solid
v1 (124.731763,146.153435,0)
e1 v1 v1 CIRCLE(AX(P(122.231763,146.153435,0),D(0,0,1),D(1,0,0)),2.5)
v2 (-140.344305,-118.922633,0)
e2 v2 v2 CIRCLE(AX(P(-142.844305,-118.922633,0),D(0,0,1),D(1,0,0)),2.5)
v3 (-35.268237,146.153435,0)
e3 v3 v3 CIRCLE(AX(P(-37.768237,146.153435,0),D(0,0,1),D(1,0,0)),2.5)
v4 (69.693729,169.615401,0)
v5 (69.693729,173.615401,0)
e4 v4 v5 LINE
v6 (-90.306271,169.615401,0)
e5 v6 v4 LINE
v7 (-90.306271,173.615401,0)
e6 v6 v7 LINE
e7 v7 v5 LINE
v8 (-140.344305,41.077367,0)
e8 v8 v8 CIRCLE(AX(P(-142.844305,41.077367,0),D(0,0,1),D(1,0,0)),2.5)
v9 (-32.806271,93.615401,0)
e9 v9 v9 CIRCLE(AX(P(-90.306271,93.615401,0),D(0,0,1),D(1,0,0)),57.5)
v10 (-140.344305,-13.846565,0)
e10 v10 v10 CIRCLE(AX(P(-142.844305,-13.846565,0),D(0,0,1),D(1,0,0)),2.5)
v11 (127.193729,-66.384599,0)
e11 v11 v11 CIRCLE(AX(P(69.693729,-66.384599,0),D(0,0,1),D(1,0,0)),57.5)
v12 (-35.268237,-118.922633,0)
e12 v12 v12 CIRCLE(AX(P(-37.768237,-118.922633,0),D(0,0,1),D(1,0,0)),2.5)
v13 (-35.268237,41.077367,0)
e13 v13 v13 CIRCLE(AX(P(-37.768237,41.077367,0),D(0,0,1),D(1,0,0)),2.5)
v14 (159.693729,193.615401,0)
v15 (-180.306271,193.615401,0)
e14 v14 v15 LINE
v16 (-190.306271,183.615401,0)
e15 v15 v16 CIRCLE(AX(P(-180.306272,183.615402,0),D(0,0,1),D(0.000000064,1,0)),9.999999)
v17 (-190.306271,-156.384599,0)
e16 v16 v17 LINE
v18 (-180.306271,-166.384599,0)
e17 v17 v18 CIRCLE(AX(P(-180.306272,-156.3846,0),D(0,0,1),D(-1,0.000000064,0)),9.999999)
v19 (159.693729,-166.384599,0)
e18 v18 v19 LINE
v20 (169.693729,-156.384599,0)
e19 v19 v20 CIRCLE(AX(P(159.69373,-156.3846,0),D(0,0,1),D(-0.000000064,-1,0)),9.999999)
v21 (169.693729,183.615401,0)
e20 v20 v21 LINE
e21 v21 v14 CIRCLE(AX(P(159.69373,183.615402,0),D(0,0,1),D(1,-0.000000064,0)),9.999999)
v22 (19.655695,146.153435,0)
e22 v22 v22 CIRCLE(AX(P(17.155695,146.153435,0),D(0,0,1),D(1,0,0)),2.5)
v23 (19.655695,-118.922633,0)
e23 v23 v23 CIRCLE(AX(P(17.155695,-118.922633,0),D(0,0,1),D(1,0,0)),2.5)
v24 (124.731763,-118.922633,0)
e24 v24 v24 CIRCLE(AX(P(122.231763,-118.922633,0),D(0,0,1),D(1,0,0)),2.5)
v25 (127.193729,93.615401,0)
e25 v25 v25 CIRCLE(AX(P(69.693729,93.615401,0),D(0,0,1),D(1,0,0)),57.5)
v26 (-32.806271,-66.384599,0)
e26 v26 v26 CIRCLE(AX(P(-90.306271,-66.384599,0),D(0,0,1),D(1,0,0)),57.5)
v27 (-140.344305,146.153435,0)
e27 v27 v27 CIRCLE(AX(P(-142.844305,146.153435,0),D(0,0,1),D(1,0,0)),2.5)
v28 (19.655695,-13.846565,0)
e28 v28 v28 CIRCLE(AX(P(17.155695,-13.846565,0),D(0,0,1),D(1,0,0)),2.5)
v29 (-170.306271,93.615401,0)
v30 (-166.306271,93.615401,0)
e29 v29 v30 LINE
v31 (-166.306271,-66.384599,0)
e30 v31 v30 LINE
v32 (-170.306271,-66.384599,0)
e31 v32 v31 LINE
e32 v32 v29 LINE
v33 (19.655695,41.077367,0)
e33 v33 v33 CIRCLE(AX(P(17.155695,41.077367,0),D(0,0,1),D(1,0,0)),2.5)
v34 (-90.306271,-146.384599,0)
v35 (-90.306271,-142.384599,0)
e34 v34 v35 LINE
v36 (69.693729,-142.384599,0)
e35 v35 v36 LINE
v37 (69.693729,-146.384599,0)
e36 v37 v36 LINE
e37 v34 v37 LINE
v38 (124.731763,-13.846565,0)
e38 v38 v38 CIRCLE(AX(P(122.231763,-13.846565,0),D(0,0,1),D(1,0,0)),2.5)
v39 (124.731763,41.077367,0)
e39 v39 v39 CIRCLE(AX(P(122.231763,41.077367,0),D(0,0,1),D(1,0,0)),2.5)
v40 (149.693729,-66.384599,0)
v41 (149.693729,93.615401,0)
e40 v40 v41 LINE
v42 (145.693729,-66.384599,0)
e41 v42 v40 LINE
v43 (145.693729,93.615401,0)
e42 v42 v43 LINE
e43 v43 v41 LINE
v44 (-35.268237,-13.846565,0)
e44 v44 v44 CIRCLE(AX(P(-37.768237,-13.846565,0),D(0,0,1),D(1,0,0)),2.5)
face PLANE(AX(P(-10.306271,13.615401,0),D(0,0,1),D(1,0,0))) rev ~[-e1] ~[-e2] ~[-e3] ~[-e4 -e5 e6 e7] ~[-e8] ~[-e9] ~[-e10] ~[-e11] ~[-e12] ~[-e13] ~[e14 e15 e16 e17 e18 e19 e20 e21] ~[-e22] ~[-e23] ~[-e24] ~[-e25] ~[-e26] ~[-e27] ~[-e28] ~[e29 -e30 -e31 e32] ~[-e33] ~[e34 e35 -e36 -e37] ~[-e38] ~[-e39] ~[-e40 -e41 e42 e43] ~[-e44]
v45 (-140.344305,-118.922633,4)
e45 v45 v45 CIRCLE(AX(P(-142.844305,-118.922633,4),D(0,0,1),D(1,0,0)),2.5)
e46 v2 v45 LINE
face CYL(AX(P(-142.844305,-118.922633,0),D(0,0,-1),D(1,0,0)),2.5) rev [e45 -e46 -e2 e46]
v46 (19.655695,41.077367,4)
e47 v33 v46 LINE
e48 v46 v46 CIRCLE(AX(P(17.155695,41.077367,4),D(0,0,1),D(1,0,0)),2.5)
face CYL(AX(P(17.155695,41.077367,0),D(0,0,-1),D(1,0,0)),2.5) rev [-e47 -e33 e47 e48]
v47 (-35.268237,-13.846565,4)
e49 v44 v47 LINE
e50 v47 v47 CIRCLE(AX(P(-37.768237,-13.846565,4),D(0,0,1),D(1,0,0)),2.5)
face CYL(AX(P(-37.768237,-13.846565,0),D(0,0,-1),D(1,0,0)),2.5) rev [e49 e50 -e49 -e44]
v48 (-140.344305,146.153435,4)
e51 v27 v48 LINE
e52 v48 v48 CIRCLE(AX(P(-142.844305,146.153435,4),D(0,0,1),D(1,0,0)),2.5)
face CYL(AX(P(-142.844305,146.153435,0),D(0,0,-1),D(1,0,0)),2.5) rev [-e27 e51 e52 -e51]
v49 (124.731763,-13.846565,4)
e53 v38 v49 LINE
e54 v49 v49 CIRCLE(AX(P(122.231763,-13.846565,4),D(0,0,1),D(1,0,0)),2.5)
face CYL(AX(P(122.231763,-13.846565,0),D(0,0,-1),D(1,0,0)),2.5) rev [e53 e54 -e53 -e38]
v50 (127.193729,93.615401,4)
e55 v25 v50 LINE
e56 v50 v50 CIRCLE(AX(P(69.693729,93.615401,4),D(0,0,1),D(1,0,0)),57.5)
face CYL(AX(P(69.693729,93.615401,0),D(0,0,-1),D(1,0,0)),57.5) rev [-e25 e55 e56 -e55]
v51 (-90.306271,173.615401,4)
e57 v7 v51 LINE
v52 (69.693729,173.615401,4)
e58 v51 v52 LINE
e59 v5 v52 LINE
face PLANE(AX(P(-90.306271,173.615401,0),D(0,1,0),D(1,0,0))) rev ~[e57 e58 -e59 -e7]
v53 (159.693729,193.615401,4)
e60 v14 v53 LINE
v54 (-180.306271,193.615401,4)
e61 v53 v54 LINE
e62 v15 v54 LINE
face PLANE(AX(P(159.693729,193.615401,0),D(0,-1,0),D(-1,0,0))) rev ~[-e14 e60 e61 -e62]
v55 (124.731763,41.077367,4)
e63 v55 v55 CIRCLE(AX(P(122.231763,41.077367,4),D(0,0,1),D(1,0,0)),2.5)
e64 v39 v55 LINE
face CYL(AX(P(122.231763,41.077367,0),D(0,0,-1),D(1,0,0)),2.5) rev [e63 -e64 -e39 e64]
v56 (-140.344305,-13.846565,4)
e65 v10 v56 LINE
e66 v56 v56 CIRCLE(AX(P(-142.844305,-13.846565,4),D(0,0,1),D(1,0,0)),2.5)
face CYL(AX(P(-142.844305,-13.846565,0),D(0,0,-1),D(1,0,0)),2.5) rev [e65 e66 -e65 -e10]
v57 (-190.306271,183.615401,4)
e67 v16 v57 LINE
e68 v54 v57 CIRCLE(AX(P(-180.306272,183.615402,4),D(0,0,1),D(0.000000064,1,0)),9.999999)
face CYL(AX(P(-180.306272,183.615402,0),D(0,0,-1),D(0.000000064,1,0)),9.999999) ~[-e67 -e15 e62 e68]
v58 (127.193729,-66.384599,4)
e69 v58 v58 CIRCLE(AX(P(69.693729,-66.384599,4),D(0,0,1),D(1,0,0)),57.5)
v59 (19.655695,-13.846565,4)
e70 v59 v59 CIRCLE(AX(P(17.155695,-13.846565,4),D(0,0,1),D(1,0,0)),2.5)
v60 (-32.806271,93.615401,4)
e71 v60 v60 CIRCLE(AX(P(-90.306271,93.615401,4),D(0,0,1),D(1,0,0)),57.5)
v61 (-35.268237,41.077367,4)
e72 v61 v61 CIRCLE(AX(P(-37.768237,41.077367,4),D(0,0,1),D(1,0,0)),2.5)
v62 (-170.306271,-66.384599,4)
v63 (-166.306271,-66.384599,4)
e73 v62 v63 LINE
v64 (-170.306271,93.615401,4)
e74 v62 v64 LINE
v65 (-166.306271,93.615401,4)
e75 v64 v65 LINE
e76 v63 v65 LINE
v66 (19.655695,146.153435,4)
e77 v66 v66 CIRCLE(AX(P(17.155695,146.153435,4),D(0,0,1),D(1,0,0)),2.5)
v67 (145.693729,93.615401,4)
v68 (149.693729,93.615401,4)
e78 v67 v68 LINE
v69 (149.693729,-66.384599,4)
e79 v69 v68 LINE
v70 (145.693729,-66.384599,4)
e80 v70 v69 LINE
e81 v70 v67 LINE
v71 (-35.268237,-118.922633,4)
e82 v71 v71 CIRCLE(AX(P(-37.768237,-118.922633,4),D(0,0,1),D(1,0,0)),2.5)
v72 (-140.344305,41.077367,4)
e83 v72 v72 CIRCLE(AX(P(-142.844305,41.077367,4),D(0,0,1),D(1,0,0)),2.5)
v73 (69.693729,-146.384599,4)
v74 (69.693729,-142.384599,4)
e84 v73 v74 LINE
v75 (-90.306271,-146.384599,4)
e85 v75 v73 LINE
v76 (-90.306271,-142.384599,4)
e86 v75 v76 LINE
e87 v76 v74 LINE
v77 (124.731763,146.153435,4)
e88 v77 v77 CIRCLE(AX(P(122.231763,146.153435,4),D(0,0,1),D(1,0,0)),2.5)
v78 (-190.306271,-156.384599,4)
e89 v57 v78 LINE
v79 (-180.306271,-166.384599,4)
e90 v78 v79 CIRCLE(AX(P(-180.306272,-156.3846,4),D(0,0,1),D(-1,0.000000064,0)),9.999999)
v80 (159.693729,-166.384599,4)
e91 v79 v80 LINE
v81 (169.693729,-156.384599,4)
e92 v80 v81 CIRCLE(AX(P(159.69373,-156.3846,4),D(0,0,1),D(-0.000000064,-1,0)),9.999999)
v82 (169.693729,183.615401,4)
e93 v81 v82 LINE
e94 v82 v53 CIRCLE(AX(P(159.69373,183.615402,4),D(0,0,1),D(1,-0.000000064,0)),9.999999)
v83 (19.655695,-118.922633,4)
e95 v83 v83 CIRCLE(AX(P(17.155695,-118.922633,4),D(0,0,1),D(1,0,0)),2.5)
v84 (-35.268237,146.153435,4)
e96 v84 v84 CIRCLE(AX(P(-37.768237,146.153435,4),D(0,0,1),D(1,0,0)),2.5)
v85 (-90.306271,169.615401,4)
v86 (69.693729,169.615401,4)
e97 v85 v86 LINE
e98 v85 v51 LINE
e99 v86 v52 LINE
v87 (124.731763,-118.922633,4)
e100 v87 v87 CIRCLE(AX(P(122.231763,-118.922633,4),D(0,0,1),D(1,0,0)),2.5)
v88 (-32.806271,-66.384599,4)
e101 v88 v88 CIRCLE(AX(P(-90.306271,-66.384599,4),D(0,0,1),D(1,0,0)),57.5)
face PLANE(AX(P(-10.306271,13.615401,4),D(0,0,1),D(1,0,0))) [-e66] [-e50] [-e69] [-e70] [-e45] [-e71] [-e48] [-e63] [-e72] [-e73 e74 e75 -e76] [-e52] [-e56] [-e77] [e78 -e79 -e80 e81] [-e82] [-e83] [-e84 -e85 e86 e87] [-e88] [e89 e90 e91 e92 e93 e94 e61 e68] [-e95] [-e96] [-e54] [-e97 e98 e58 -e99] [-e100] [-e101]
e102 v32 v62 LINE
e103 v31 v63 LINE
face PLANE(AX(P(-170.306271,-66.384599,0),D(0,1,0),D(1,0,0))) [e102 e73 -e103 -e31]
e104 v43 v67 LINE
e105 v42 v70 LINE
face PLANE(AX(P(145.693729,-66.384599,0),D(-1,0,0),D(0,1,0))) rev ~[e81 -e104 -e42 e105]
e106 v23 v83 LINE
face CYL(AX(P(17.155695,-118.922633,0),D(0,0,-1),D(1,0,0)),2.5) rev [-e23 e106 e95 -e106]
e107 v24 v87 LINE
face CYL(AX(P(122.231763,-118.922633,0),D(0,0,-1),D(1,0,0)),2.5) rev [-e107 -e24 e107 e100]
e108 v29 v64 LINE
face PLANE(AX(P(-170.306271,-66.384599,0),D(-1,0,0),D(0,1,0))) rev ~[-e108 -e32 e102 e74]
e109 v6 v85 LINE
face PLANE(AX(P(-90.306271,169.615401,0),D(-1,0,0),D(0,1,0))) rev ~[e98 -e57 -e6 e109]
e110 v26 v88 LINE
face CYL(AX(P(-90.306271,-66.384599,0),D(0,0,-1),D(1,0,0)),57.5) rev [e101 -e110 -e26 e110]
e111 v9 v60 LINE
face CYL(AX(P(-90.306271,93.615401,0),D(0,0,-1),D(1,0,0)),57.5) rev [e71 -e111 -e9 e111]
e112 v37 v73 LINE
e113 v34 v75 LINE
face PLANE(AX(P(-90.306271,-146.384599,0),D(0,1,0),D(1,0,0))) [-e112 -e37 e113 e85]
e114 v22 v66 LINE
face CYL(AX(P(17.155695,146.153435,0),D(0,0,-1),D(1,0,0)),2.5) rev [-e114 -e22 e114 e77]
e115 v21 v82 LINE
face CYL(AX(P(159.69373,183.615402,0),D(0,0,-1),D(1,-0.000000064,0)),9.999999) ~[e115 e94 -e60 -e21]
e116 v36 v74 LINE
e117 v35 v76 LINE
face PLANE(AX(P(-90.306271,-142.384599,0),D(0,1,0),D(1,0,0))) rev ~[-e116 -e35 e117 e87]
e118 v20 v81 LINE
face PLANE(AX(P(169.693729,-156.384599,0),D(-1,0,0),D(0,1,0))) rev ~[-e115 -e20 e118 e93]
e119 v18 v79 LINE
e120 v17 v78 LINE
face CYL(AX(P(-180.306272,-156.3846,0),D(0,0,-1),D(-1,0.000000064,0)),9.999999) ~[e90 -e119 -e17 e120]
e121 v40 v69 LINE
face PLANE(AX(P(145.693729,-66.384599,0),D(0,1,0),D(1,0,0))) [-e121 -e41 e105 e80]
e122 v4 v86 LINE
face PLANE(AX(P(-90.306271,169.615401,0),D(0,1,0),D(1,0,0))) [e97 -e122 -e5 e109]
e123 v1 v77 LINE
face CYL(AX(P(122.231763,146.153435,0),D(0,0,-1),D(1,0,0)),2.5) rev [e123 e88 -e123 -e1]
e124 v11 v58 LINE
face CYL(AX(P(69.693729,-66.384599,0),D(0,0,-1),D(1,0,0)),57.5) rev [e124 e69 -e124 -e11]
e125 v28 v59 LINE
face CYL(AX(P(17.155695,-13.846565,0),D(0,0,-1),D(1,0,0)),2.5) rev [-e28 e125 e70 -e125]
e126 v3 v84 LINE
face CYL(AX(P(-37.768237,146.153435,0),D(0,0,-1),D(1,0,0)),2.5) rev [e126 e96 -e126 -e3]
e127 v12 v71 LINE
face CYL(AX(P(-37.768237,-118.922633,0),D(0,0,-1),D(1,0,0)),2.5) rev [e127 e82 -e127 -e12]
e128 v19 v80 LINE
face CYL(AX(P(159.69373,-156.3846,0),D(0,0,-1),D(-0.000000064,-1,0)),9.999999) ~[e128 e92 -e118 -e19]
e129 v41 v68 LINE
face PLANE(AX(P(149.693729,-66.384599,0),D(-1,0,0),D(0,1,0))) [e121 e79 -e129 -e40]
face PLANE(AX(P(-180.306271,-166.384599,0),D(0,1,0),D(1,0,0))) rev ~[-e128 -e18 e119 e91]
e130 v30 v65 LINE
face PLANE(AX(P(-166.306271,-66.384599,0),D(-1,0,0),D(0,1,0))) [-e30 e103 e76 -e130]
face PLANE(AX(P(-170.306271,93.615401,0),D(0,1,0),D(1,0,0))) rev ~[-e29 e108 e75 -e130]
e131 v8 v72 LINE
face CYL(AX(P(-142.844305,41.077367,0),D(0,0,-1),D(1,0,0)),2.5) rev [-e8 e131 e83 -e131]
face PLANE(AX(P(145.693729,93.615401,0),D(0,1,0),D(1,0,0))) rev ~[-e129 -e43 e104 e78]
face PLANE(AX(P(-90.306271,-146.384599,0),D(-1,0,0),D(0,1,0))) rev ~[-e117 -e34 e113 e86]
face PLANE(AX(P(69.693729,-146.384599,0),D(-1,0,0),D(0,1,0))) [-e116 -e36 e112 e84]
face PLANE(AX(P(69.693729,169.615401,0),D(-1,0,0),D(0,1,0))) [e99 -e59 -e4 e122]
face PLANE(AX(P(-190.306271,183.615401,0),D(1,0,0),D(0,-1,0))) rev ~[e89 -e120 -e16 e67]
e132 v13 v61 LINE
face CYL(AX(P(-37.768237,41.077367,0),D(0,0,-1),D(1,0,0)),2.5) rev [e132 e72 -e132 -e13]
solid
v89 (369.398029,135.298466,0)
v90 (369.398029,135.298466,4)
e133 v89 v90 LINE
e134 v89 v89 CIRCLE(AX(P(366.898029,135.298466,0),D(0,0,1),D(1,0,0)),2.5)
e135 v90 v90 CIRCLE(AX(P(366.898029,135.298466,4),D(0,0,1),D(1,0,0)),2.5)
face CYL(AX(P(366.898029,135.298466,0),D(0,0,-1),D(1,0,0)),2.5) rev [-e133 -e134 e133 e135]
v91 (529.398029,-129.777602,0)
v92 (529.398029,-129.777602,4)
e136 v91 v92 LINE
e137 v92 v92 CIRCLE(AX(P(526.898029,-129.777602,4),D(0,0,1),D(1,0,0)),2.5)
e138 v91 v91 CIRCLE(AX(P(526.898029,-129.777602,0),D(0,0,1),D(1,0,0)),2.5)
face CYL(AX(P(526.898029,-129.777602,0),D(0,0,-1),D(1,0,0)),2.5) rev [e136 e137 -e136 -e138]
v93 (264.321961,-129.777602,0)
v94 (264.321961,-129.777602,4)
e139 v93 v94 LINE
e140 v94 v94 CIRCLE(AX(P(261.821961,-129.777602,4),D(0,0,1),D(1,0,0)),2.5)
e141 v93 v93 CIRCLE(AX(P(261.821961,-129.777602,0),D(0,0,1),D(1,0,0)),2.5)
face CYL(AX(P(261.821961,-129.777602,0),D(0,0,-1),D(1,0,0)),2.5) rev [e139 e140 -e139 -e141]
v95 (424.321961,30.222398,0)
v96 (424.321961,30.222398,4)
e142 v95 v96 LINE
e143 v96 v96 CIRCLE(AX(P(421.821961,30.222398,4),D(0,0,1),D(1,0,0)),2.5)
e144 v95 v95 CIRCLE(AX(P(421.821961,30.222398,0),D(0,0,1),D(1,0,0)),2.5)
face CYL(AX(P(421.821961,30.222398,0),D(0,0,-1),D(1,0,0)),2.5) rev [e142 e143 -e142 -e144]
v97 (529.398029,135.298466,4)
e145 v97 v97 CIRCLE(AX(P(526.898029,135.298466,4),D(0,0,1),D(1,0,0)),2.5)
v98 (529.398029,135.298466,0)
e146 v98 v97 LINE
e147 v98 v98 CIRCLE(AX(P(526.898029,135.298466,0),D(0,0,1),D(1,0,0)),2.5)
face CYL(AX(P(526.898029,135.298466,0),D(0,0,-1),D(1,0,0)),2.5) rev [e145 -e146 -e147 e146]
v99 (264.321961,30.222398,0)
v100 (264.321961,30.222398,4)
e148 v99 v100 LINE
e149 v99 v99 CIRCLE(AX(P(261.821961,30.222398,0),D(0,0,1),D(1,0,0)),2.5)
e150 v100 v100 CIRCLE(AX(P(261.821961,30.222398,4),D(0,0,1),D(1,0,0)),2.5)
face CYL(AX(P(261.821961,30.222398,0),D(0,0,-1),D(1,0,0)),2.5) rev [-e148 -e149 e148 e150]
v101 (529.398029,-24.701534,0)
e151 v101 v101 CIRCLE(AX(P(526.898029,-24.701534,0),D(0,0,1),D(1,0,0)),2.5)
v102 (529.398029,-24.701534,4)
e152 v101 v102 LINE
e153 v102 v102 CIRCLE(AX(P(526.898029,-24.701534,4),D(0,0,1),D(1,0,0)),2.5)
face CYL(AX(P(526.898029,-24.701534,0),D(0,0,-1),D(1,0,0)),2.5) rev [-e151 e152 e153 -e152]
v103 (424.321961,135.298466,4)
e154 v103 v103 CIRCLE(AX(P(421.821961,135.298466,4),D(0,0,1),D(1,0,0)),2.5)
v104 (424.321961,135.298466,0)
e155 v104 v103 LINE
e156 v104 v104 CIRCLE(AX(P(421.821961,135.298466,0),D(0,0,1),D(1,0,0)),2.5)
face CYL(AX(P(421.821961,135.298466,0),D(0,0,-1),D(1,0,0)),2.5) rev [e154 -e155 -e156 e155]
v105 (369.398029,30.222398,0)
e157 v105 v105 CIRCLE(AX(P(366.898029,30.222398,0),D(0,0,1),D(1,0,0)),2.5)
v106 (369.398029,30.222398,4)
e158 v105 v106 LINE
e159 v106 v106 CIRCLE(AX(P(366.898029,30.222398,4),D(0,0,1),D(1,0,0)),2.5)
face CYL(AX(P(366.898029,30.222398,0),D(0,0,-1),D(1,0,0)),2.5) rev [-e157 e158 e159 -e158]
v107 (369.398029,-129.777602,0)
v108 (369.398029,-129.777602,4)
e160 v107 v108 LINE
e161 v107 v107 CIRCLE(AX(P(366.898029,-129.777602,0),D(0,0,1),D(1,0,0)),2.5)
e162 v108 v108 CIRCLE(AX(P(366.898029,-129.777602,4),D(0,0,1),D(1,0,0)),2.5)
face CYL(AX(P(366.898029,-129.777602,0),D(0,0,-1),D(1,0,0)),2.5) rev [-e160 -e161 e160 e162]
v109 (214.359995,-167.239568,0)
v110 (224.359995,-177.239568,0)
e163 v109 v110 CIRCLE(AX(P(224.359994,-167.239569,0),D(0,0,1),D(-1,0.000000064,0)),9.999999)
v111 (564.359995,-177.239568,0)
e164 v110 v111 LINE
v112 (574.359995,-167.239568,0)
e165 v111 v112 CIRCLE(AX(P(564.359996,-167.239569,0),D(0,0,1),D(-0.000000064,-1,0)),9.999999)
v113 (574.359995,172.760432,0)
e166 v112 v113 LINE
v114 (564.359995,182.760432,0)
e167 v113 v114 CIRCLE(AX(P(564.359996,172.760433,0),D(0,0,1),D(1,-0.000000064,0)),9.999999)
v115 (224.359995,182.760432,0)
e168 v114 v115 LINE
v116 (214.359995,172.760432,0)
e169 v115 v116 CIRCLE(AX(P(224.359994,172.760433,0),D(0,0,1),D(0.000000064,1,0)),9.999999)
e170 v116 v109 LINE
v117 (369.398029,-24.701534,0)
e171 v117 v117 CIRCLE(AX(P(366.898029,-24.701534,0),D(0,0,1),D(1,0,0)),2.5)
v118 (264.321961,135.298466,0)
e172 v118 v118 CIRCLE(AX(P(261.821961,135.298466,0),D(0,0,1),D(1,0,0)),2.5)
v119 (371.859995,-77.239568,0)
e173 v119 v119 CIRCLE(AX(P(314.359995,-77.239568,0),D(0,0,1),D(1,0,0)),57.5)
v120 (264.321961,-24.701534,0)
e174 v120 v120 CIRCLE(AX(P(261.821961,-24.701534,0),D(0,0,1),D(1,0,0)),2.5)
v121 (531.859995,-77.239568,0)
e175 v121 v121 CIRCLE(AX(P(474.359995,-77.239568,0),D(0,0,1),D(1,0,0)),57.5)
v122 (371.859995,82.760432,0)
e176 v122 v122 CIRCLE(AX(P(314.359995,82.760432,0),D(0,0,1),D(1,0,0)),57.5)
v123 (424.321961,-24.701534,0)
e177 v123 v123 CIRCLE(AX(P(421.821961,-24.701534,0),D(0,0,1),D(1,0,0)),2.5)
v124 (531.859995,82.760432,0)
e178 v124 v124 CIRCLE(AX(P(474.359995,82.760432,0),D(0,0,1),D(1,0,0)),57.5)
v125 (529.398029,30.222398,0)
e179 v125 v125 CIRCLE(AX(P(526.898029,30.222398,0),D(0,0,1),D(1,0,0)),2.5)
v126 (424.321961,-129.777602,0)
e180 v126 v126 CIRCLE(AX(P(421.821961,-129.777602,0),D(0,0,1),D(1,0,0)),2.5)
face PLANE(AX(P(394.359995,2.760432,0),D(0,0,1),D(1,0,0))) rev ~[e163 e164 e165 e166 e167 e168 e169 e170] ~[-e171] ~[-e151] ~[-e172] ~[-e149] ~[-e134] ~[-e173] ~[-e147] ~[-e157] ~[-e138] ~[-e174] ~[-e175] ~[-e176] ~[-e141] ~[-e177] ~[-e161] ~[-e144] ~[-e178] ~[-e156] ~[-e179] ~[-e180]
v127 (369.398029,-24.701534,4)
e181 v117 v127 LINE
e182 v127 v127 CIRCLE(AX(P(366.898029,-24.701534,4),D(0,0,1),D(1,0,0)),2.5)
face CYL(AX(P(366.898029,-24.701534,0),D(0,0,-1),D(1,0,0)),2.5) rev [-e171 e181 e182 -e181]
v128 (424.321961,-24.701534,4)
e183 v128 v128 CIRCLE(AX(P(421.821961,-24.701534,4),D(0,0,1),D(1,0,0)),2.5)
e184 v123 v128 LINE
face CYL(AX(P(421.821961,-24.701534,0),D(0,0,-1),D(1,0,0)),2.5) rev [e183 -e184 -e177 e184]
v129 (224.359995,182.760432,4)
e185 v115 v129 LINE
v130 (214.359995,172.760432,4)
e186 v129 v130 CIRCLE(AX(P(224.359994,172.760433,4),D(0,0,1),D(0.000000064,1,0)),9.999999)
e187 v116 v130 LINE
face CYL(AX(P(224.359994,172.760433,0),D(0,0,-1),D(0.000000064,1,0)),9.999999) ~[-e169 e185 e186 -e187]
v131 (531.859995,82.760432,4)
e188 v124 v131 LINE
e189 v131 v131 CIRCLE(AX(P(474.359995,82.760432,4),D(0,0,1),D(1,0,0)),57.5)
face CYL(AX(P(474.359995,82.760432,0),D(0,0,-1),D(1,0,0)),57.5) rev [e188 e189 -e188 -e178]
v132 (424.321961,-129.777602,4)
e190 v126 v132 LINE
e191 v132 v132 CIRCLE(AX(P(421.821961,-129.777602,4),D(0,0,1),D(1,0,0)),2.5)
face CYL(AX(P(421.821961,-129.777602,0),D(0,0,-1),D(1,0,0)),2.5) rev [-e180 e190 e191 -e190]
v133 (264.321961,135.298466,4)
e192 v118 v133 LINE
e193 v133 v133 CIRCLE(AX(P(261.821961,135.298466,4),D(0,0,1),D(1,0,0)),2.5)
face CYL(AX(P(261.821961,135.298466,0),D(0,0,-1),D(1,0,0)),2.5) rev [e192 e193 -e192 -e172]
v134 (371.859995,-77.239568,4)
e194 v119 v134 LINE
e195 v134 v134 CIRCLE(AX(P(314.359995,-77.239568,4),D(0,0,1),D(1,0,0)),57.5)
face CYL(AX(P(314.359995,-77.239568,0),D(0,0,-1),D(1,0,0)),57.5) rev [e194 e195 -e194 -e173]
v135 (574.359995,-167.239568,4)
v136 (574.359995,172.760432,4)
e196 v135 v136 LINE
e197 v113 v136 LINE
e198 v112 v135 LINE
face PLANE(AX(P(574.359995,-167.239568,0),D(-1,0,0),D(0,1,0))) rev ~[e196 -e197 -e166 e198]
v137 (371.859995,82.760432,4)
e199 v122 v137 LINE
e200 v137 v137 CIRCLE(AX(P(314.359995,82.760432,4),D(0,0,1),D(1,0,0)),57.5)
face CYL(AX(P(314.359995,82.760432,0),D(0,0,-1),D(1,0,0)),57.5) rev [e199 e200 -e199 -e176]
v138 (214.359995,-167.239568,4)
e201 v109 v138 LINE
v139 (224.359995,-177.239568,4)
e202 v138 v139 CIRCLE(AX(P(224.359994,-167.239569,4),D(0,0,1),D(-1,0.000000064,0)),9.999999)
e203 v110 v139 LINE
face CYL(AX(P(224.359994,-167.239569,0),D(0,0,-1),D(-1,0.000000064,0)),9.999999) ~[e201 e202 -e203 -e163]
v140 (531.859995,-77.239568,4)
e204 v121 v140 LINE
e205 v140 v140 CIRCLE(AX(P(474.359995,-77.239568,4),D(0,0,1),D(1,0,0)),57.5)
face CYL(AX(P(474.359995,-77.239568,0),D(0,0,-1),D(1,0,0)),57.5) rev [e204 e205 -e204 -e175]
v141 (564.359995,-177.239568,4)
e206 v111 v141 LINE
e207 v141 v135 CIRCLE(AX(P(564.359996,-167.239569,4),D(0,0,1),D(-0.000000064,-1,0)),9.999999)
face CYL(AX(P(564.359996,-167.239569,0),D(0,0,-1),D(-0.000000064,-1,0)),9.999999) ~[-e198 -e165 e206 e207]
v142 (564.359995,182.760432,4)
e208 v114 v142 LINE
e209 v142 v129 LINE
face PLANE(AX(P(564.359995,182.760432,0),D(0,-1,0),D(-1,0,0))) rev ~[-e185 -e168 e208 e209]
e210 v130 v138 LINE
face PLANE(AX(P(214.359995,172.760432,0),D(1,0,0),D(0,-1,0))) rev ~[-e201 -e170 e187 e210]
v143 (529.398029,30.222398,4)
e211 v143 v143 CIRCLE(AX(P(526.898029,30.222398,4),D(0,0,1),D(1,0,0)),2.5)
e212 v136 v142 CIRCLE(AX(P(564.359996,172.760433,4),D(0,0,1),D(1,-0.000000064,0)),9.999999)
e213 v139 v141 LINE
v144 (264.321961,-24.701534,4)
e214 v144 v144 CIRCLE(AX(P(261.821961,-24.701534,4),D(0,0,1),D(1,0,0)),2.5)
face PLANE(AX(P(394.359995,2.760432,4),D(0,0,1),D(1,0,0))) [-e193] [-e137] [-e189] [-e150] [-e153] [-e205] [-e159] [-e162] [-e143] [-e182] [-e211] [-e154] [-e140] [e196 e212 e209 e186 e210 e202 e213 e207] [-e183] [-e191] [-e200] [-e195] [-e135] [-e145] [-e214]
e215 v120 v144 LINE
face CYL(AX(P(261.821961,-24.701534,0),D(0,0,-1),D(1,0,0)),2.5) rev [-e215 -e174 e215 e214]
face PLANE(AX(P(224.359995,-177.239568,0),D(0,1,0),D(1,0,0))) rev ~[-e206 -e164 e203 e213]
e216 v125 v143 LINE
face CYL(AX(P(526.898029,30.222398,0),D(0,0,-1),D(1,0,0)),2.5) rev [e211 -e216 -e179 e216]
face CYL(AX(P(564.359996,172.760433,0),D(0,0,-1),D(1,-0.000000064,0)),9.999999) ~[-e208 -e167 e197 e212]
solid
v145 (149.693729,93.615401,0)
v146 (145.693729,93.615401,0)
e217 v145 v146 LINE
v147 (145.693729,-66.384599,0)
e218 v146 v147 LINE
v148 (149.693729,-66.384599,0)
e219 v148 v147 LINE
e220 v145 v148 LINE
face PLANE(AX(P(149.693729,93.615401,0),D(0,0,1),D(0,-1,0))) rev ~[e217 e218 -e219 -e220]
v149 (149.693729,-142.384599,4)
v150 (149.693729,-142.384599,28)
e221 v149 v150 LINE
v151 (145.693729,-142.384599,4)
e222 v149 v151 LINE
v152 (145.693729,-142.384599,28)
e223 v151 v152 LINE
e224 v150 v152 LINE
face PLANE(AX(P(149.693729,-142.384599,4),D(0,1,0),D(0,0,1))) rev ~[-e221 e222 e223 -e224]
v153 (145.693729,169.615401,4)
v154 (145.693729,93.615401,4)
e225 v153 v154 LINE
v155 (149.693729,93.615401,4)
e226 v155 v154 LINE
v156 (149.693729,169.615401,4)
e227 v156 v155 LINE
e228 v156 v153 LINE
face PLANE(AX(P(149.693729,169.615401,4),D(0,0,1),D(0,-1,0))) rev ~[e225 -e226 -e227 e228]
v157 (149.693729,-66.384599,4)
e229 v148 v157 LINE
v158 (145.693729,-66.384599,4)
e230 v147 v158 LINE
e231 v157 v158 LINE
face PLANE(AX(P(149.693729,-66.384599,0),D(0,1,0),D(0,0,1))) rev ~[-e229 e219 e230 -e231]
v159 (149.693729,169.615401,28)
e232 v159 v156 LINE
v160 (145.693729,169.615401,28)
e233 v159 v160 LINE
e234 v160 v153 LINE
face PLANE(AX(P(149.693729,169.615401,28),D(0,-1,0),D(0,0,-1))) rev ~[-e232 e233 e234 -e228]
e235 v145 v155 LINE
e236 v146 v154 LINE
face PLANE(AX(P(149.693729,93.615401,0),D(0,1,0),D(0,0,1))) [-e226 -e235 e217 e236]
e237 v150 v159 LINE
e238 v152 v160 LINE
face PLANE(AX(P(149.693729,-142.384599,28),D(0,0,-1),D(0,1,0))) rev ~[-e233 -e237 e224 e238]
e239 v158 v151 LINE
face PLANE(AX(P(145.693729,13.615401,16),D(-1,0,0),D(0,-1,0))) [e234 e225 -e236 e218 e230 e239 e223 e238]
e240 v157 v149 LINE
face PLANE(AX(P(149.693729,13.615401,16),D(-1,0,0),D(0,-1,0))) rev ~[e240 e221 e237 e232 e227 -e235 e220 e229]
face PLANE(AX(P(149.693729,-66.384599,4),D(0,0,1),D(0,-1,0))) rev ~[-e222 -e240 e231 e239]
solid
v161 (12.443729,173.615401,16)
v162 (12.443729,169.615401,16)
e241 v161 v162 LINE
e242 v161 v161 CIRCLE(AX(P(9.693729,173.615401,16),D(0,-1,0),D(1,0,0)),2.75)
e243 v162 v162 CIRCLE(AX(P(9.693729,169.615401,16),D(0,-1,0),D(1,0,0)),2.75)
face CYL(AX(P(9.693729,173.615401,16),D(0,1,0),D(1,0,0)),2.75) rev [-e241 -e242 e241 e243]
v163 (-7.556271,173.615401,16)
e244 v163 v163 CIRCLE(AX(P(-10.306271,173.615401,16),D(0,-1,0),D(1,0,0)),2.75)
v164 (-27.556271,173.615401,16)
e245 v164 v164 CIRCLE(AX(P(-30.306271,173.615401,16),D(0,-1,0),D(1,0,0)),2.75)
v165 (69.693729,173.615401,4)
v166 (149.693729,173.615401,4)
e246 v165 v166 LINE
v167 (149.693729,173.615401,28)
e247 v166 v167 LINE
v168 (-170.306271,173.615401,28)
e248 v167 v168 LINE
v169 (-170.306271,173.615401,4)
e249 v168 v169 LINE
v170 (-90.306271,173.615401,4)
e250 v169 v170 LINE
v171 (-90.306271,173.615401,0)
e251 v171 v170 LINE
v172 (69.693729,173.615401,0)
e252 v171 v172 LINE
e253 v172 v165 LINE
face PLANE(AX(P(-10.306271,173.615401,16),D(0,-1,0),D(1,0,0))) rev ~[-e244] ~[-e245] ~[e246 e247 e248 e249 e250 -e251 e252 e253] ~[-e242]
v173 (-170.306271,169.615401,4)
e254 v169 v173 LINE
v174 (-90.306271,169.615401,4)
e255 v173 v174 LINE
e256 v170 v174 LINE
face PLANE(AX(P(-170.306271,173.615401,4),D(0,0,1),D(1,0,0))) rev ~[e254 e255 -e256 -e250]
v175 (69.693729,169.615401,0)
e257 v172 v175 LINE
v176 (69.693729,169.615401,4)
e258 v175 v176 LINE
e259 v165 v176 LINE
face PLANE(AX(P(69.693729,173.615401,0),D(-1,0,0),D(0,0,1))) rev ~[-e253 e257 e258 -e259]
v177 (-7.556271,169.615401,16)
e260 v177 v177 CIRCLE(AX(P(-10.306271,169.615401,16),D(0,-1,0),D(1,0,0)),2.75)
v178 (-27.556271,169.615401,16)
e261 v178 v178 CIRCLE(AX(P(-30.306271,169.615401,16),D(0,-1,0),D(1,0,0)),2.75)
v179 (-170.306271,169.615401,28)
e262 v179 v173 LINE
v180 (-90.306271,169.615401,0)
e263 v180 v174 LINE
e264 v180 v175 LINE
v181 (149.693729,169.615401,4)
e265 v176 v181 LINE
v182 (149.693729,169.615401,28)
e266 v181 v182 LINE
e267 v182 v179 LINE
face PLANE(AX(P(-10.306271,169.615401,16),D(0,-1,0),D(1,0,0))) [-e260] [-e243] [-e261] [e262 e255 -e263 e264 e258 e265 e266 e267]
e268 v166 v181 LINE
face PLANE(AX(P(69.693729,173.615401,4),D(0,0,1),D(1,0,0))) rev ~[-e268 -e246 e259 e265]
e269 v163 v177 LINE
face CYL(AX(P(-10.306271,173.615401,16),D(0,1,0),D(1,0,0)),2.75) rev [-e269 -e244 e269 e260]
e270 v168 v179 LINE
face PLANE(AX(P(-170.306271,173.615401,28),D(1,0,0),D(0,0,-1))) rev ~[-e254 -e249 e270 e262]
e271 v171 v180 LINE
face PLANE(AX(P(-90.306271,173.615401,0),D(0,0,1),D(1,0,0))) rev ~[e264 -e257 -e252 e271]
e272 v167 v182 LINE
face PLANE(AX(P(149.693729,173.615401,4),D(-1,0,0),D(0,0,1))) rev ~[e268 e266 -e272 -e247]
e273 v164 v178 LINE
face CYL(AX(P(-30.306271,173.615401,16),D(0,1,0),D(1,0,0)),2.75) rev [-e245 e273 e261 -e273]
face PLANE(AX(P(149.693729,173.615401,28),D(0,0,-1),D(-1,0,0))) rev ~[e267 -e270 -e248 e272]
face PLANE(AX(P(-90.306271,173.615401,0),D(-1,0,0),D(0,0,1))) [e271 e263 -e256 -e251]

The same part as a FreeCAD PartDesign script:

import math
import FreeCAD as App
import Part
import Sketcher
from FreeCAD import Vector
Q = App.Units.Quantity

doc = App.newDocument("Part")
body = doc.addObject("PartDesign::Body", "Body")
body.AllowCompound = True

sketch1 = body.newObject("Sketcher::SketchObject", "Sketch")
sketch1.AttachmentSupport = (doc.getObject("XY_Plane"), [""])
sketch1.MapMode = "FlatFace"
sketch1.addGeometry([
    Part.LineSegment(Vector(159.693729, 193.615401, 0), Vector(-180.306271, 193.615401, 0)),
    Part.ArcOfCircle(Part.Circle(Vector(-180.306272, 183.615402, 0), Vector(0, 0, 1), 9.999999), math.radians(89.999996), math.radians(180.000004)),
    Part.LineSegment(Vector(-190.306271, 183.615401, 0), Vector(-190.306271, -156.384599, 0)),
    Part.ArcOfCircle(Part.Circle(Vector(-180.306272, -156.3846, 0), Vector(0, 0, 1), 9.999999), math.radians(179.999996), math.radians(270.000004)),
    Part.LineSegment(Vector(-180.306271, -166.384599, 0), Vector(159.693729, -166.384599, 0)),
    Part.ArcOfCircle(Part.Circle(Vector(159.69373, -156.3846, 0), Vector(0, 0, 1), 9.999999), math.radians(-90.000004), math.radians(0.000004)),
    Part.LineSegment(Vector(169.693729, -156.384599, 0), Vector(169.693729, 183.615401, 0)),
    Part.ArcOfCircle(Part.Circle(Vector(159.69373, 183.615402, 0), Vector(0, 0, 1), 9.999999), math.radians(-0.000004), math.radians(90.000004)),
    Part.Circle(Vector(-142.844305, -118.922633, 0), Vector(0, 0, 1), 2.5),
    Part.Circle(Vector(-37.768237, -118.922633, 0), Vector(0, 0, 1), 2.5),
    Part.Circle(Vector(-142.844305, -13.846565, 0), Vector(0, 0, 1), 2.5),
    Part.Circle(Vector(-90.306271, -66.384599, 0), Vector(0, 0, 1), 57.5),
    Part.Circle(Vector(-37.768237, -13.846565, 0), Vector(0, 0, 1), 2.5),
    Part.LineSegment(Vector(69.693729, -146.384599, 0), Vector(-90.306271, -146.384599, 0)),
    Part.LineSegment(Vector(-90.306271, -146.384599, 0), Vector(-90.306271, -142.384599, 0)),
    Part.LineSegment(Vector(-90.306271, -142.384599, 0), Vector(69.693729, -142.384599, 0)),
    Part.LineSegment(Vector(69.693729, -142.384599, 0), Vector(69.693729, -146.384599, 0)),
    Part.Circle(Vector(17.155695, -118.922633, 0), Vector(0, 0, 1), 2.5),
    Part.Circle(Vector(122.231763, -118.922633, 0), Vector(0, 0, 1), 2.5),
    Part.Circle(Vector(17.155695, -13.846565, 0), Vector(0, 0, 1), 2.5),
    Part.Circle(Vector(69.693729, -66.384599, 0), Vector(0, 0, 1), 57.5),
    Part.Circle(Vector(122.231763, -13.846565, 0), Vector(0, 0, 1), 2.5),
    Part.LineSegment(Vector(-166.306271, -66.384599, 0), Vector(-170.306271, -66.384599, 0)),
    Part.LineSegment(Vector(-170.306271, -66.384599, 0), Vector(-170.306271, 93.615401, 0)),
    Part.LineSegment(Vector(-170.306271, 93.615401, 0), Vector(-166.306271, 93.615401, 0)),
    Part.LineSegment(Vector(-166.306271, 93.615401, 0), Vector(-166.306271, -66.384599, 0)),
    Part.Circle(Vector(-142.844305, 41.077367, 0), Vector(0, 0, 1), 2.5),
    Part.Circle(Vector(-37.768237, 41.077367, 0), Vector(0, 0, 1), 2.5),
    Part.Circle(Vector(-142.844305, 146.153435, 0), Vector(0, 0, 1), 2.5),
    Part.Circle(Vector(-90.306271, 93.615401, 0), Vector(0, 0, 1), 57.5),
    Part.Circle(Vector(-37.768237, 146.153435, 0), Vector(0, 0, 1), 2.5),
    Part.Circle(Vector(17.155695, 41.077367, 0), Vector(0, 0, 1), 2.5),
    Part.LineSegment(Vector(149.693729, -66.384599, 0), Vector(145.693729, -66.384599, 0)),
    Part.LineSegment(Vector(145.693729, -66.384599, 0), Vector(145.693729, 93.615401, 0)),
    Part.LineSegment(Vector(145.693729, 93.615401, 0), Vector(149.693729, 93.615401, 0)),
    Part.LineSegment(Vector(149.693729, 93.615401, 0), Vector(149.693729, -66.384599, 0)),
    Part.Circle(Vector(122.231763, 41.077367, 0), Vector(0, 0, 1), 2.5),
    Part.Circle(Vector(17.155695, 146.153435, 0), Vector(0, 0, 1), 2.5),
    Part.LineSegment(Vector(69.693729, 169.615401, 0), Vector(-90.306271, 169.615401, 0)),
    Part.LineSegment(Vector(-90.306271, 169.615401, 0), Vector(-90.306271, 173.615401, 0)),
    Part.LineSegment(Vector(-90.306271, 173.615401, 0), Vector(69.693729, 173.615401, 0)),
    Part.LineSegment(Vector(69.693729, 173.615401, 0), Vector(69.693729, 169.615401, 0)),
    Part.Circle(Vector(69.693729, 93.615401, 0), Vector(0, 0, 1), 57.5),
    Part.Circle(Vector(122.231763, 146.153435, 0), Vector(0, 0, 1), 2.5),
    Part.LineSegment(Vector(564.359995, 182.760432, 0), Vector(224.359995, 182.760432, 0)),
    Part.ArcOfCircle(Part.Circle(Vector(224.359994, 172.760433, 0), Vector(0, 0, 1), 9.999999), math.radians(89.999996), math.radians(180.000004)),
    Part.LineSegment(Vector(214.359995, 172.760432, 0), Vector(214.359995, -167.239568, 0)),
    Part.ArcOfCircle(Part.Circle(Vector(224.359994, -167.239569, 0), Vector(0, 0, 1), 9.999999), math.radians(179.999996), math.radians(270.000004)),
    Part.LineSegment(Vector(224.359995, -177.239568, 0), Vector(564.359995, -177.239568, 0)),
    Part.ArcOfCircle(Part.Circle(Vector(564.359996, -167.239569, 0), Vector(0, 0, 1), 9.999999), math.radians(-90.000004), math.radians(0.000004)),
    Part.LineSegment(Vector(574.359995, -167.239568, 0), Vector(574.359995, 172.760432, 0)),
    Part.ArcOfCircle(Part.Circle(Vector(564.359996, 172.760433, 0), Vector(0, 0, 1), 9.999999), math.radians(-0.000004), math.radians(90.000004)),
    Part.Circle(Vector(261.821961, -129.777602, 0), Vector(0, 0, 1), 2.5),
    Part.Circle(Vector(314.359995, -77.239568, 0), Vector(0, 0, 1), 57.5),
    Part.Circle(Vector(366.898029, -129.777602, 0), Vector(0, 0, 1), 2.5),
    Part.Circle(Vector(261.821961, -24.701534, 0), Vector(0, 0, 1), 2.5),
    Part.Circle(Vector(366.898029, -24.701534, 0), Vector(0, 0, 1), 2.5),
    Part.Circle(Vector(421.821961, -129.777602, 0), Vector(0, 0, 1), 2.5),
    Part.Circle(Vector(526.898029, -129.777602, 0), Vector(0, 0, 1), 2.5),
    Part.Circle(Vector(474.359995, -77.239568, 0), Vector(0, 0, 1), 57.5),
    Part.Circle(Vector(421.821961, -24.701534, 0), Vector(0, 0, 1), 2.5),
    Part.Circle(Vector(526.898029, -24.701534, 0), Vector(0, 0, 1), 2.5),
    Part.Circle(Vector(261.821961, 30.222398, 0), Vector(0, 0, 1), 2.5),
    Part.Circle(Vector(366.898029, 30.222398, 0), Vector(0, 0, 1), 2.5),
    Part.Circle(Vector(314.359995, 82.760432, 0), Vector(0, 0, 1), 57.5),
    Part.Circle(Vector(261.821961, 135.298466, 0), Vector(0, 0, 1), 2.5),
    Part.Circle(Vector(366.898029, 135.298466, 0), Vector(0, 0, 1), 2.5),
    Part.Circle(Vector(421.821961, 30.222398, 0), Vector(0, 0, 1), 2.5),
    Part.Circle(Vector(526.898029, 30.222398, 0), Vector(0, 0, 1), 2.5),
    Part.Circle(Vector(421.821961, 135.298466, 0), Vector(0, 0, 1), 2.5),
    Part.Circle(Vector(474.359995, 82.760432, 0), Vector(0, 0, 1), 57.5),
    Part.Circle(Vector(526.898029, 135.298466, 0), Vector(0, 0, 1), 2.5),
], False)
sketch1.addConstraint([
    Sketcher.Constraint("Tangent", 0, 2, 1, 1),
    Sketcher.Constraint("Tangent", 1, 2, 2, 1),
    Sketcher.Constraint("Tangent", 2, 2, 3, 1),
    Sketcher.Constraint("Tangent", 3, 2, 4, 1),
    Sketcher.Constraint("Tangent", 4, 2, 5, 1),
    Sketcher.Constraint("Tangent", 5, 2, 6, 1),
    Sketcher.Constraint("Tangent", 6, 2, 7, 1),
    Sketcher.Constraint("Tangent", 7, 2, 0, 1),
    Sketcher.Constraint("Coincident", 13, 2, 14, 1),
    Sketcher.Constraint("Coincident", 14, 2, 15, 1),
    Sketcher.Constraint("Coincident", 15, 2, 16, 1),
    Sketcher.Constraint("Coincident", 16, 2, 13, 1),
    Sketcher.Constraint("Coincident", 22, 2, 23, 1),
    Sketcher.Constraint("Coincident", 23, 2, 24, 1),
    Sketcher.Constraint("Coincident", 24, 2, 25, 1),
    Sketcher.Constraint("Coincident", 25, 2, 22, 1),
    Sketcher.Constraint("Coincident", 32, 2, 33, 1),
    Sketcher.Constraint("Coincident", 33, 2, 34, 1),
    Sketcher.Constraint("Coincident", 34, 2, 35, 1),
    Sketcher.Constraint("Coincident", 35, 2, 32, 1),
    Sketcher.Constraint("Coincident", 38, 2, 39, 1),
    Sketcher.Constraint("Coincident", 39, 2, 40, 1),
    Sketcher.Constraint("Coincident", 40, 2, 41, 1),
    Sketcher.Constraint("Coincident", 41, 2, 38, 1),
    Sketcher.Constraint("Tangent", 44, 2, 45, 1),
    Sketcher.Constraint("Tangent", 45, 2, 46, 1),
    Sketcher.Constraint("Tangent", 46, 2, 47, 1),
    Sketcher.Constraint("Tangent", 47, 2, 48, 1),
    Sketcher.Constraint("Tangent", 48, 2, 49, 1),
    Sketcher.Constraint("Tangent", 49, 2, 50, 1),
    Sketcher.Constraint("Tangent", 50, 2, 51, 1),
    Sketcher.Constraint("Tangent", 51, 2, 44, 1),
    Sketcher.Constraint("Horizontal", 0),
    Sketcher.Constraint("Vertical", 2),
    Sketcher.Constraint("Horizontal", 4),
    Sketcher.Constraint("Vertical", 6),
    Sketcher.Constraint("Horizontal", 13),
    Sketcher.Constraint("Vertical", 14),
    Sketcher.Constraint("Horizontal", 15),
    Sketcher.Constraint("Vertical", 16),
    Sketcher.Constraint("Horizontal", 22),
    Sketcher.Constraint("Vertical", 23),
    Sketcher.Constraint("Horizontal", 24),
    Sketcher.Constraint("Vertical", 25),
    Sketcher.Constraint("Horizontal", 32),
    Sketcher.Constraint("Vertical", 33),
    Sketcher.Constraint("Horizontal", 34),
    Sketcher.Constraint("Vertical", 35),
    Sketcher.Constraint("Horizontal", 38),
    Sketcher.Constraint("Vertical", 39),
    Sketcher.Constraint("Horizontal", 40),
    Sketcher.Constraint("Vertical", 41),
    Sketcher.Constraint("Horizontal", 44),
    Sketcher.Constraint("Vertical", 46),
    Sketcher.Constraint("Horizontal", 48),
    Sketcher.Constraint("Vertical", 50),
    Sketcher.Constraint("Equal", 1, 3),
    Sketcher.Constraint("Equal", 3, 5),
    Sketcher.Constraint("Equal", 5, 7),
    Sketcher.Constraint("Equal", 8, 9),
    Sketcher.Constraint("Equal", 9, 10),
    Sketcher.Constraint("Equal", 10, 12),
    Sketcher.Constraint("Equal", 12, 17),
    Sketcher.Constraint("Equal", 17, 18),
    Sketcher.Constraint("Equal", 18, 19),
    Sketcher.Constraint("Equal", 11, 20),
    Sketcher.Constraint("Equal", 19, 21),
    Sketcher.Constraint("Equal", 21, 26),
    Sketcher.Constraint("Equal", 26, 27),
    Sketcher.Constraint("Equal", 27, 28),
    Sketcher.Constraint("Equal", 20, 29),
    Sketcher.Constraint("Equal", 28, 30),
    Sketcher.Constraint("Equal", 30, 31),
    Sketcher.Constraint("Equal", 31, 36),
    Sketcher.Constraint("Equal", 36, 37),
    Sketcher.Constraint("Equal", 29, 42),
    Sketcher.Constraint("Equal", 37, 43),
    Sketcher.Constraint("Equal", 7, 45),
    Sketcher.Constraint("Equal", 45, 47),
    Sketcher.Constraint("Equal", 47, 49),
    Sketcher.Constraint("Equal", 49, 51),
    Sketcher.Constraint("Equal", 43, 52),
    Sketcher.Constraint("Equal", 42, 53),
    Sketcher.Constraint("Equal", 52, 54),
    Sketcher.Constraint("Equal", 54, 55),
    Sketcher.Constraint("Equal", 55, 56),
    Sketcher.Constraint("Equal", 56, 57),
    Sketcher.Constraint("Equal", 57, 58),
    Sketcher.Constraint("Equal", 53, 59),
    Sketcher.Constraint("Equal", 58, 60),
    Sketcher.Constraint("Equal", 60, 61),
    Sketcher.Constraint("Equal", 61, 62),
    Sketcher.Constraint("Equal", 62, 63),
    Sketcher.Constraint("Equal", 59, 64),
    Sketcher.Constraint("Equal", 63, 65),
    Sketcher.Constraint("Equal", 65, 66),
    Sketcher.Constraint("Equal", 66, 67),
    Sketcher.Constraint("Equal", 67, 68),
    Sketcher.Constraint("Equal", 68, 69),
    Sketcher.Constraint("Equal", 64, 70),
    Sketcher.Constraint("Equal", 69, 71),
    Sketcher.Constraint("Horizontal", 8, 3, 9, 3),
    Sketcher.Constraint("Horizontal", 10, 3, 12, 3),
    Sketcher.Constraint("Horizontal", 9, 3, 17, 3),
    Sketcher.Constraint("Horizontal", 17, 3, 18, 3),
    Sketcher.Constraint("Horizontal", 12, 3, 19, 3),
    Sketcher.Constraint("Horizontal", 11, 3, 20, 3),
    Sketcher.Constraint("Horizontal", 19, 3, 21, 3),
    Sketcher.Constraint("Horizontal", 26, 3, 27, 3),
    Sketcher.Constraint("Horizontal", 28, 3, 30, 3),
    Sketcher.Constraint("Horizontal", 27, 3, 31, 3),
    Sketcher.Constraint("Horizontal", 31, 3, 36, 3),
    Sketcher.Constraint("Horizontal", 30, 3, 37, 3),
    Sketcher.Constraint("Horizontal", 29, 3, 42, 3),
    Sketcher.Constraint("Horizontal", 37, 3, 43, 3),
    Sketcher.Constraint("Horizontal", 52, 3, 54, 3),
    Sketcher.Constraint("Horizontal", 55, 3, 56, 3),
    Sketcher.Constraint("Horizontal", 54, 3, 57, 3),
    Sketcher.Constraint("Horizontal", 57, 3, 58, 3),
    Sketcher.Constraint("Horizontal", 53, 3, 59, 3),
    Sketcher.Constraint("Horizontal", 56, 3, 60, 3),
    Sketcher.Constraint("Horizontal", 60, 3, 61, 3),
    Sketcher.Constraint("Horizontal", 62, 3, 63, 3),
    Sketcher.Constraint("Horizontal", 65, 3, 66, 3),
    Sketcher.Constraint("Horizontal", 63, 3, 67, 3),
    Sketcher.Constraint("Horizontal", 67, 3, 68, 3),
    Sketcher.Constraint("Horizontal", 66, 3, 69, 3),
    Sketcher.Constraint("Horizontal", 64, 3, 70, 3),
    Sketcher.Constraint("Horizontal", 69, 3, 71, 3),
    Sketcher.Constraint("Horizontal", 20, 3, 22, 2),
    Sketcher.Constraint("Horizontal", 42, 3, 23, 2),
    Sketcher.Constraint("Horizontal", 25, 2, 32, 2),
    Sketcher.Constraint("Horizontal", 24, 2, 33, 2),
    Sketcher.Constraint("Vertical", 8, 3, 10, 3),
    Sketcher.Constraint("Vertical", 9, 3, 12, 3),
    Sketcher.Constraint("Vertical", 17, 3, 19, 3),
    Sketcher.Constraint("Vertical", 18, 3, 21, 3),
    Sketcher.Constraint("Vertical", 10, 3, 26, 3),
    Sketcher.Constraint("Vertical", 12, 3, 27, 3),
    Sketcher.Constraint("Vertical", 26, 3, 28, 3),
    Sketcher.Constraint("Vertical", 11, 3, 29, 3),
    Sketcher.Constraint("Vertical", 27, 3, 30, 3),
    Sketcher.Constraint("Vertical", 19, 3, 31, 3),
    Sketcher.Constraint("Vertical", 21, 3, 36, 3),
    Sketcher.Constraint("Vertical", 31, 3, 37, 3),
    Sketcher.Constraint("Vertical", 20, 3, 42, 3),
    Sketcher.Constraint("Vertical", 36, 3, 43, 3),
    Sketcher.Constraint("Vertical", 52, 3, 55, 3),
    Sketcher.Constraint("Vertical", 54, 3, 56, 3),
    Sketcher.Constraint("Vertical", 57, 3, 60, 3),
    Sketcher.Constraint("Vertical", 58, 3, 61, 3),
    Sketcher.Constraint("Vertical", 55, 3, 62, 3),
    Sketcher.Constraint("Vertical", 56, 3, 63, 3),
    Sketcher.Constraint("Vertical", 53, 3, 64, 3),
    Sketcher.Constraint("Vertical", 62, 3, 65, 3),
    Sketcher.Constraint("Vertical", 63, 3, 66, 3),
    Sketcher.Constraint("Vertical", 60, 3, 67, 3),
    Sketcher.Constraint("Vertical", 61, 3, 68, 3),
    Sketcher.Constraint("Vertical", 67, 3, 69, 3),
    Sketcher.Constraint("Vertical", 59, 3, 70, 3),
    Sketcher.Constraint("Vertical", 68, 3, 71, 3),
    Sketcher.Constraint("Vertical", 29, 3, 13, 2),
    Sketcher.Constraint("Vertical", 42, 3, 15, 2),
    Sketcher.Constraint("Vertical", 14, 2, 38, 2),
    Sketcher.Constraint("Vertical", 16, 2, 40, 2),
    Sketcher.Constraint("Equal", 24, 32),
    Sketcher.Constraint("Equal", 4, 44),
    Sketcher.Constraint("Equal", 48, 2),
    Sketcher.Constraint("Equal", 34, 14),
    Sketcher.Constraint("Equal", 40, 23),
    Sketcher.Constraint("Equal", 16, 39),
    Sketcher.Constraint("Equal", 6, 46),
    Sketcher.Constraint("Diameter", 8, Q("5 mm")),
    Sketcher.Constraint("Diameter", 11, Q("115 mm")),
    Sketcher.Constraint("Radius", 1, Q("9.999999 mm")),
    Sketcher.Constraint("DistanceX", 0, 2, 0, 1, Q("340 mm")),
    Sketcher.Constraint("DistanceX", 13, 2, 13, 1, Q("160 mm")),
    Sketcher.Constraint("DistanceX", 22, 2, 22, 1, Q("4 mm")),
    Sketcher.Constraint("DistanceY", -1, 1, 1, 3, Q("183.615402 mm")),
    Sketcher.Constraint("DistanceY", 11, 3, -1, 1, Q("66.384599 mm")),
    Sketcher.Constraint("DistanceY", 52, 3, -1, 1, Q("129.777602 mm")),
    Sketcher.Constraint("DistanceY", 13, 2, -1, 1, Q("146.384599 mm")),
    Sketcher.Constraint("DistanceY", -1, 1, 38, 2, Q("169.615401 mm")),
    Sketcher.Constraint("DistanceX", 1, 3, -1, 1, Q("180.306272 mm")),
    Sketcher.Constraint("DistanceX", 11, 3, -1, 1, Q("90.306271 mm")),
    Sketcher.Constraint("DistanceY", 47, 3, -1, 1, Q("167.239569 mm")),
    Sketcher.Constraint("DistanceX", -1, 1, 52, 3, Q("261.821961 mm")),
    Sketcher.Constraint("DistanceY", 53, 3, -1, 1, Q("77.239568 mm")),
    Sketcher.Constraint("DistanceX", -1, 1, 54, 3, Q("366.898029 mm")),
    Sketcher.Constraint("DistanceX", -1, 1, 57, 3, Q("421.821961 mm")),
    Sketcher.Constraint("DistanceX", -1, 1, 58, 3, Q("526.898029 mm")),
    Sketcher.Constraint("DistanceY", -1, 1, 64, 3, Q("82.760432 mm")),
    Sketcher.Constraint("DistanceX", 22, 2, -1, 1, Q("170.306271 mm")),
    Sketcher.Constraint("DistanceX", -1, 1, 32, 2, Q("145.693729 mm")),
    Sketcher.Constraint("DistanceX", 8, 3, -1, 1, Q("142.844305 mm")),
    Sketcher.Constraint("DistanceY", 8, 3, -1, 1, Q("118.922633 mm")),
    Sketcher.Constraint("DistanceX", 9, 3, -1, 1, Q("37.768237 mm")),
    Sketcher.Constraint("DistanceY", 10, 3, -1, 1, Q("13.846565 mm")),
    Sketcher.Constraint("DistanceX", -1, 1, 17, 3, Q("17.155695 mm")),
    Sketcher.Constraint("DistanceX", -1, 1, 18, 3, Q("122.231763 mm")),
    Sketcher.Constraint("DistanceY", -1, 1, 26, 3, Q("41.077367 mm")),
    Sketcher.Constraint("DistanceY", -1, 1, 28, 3, Q("146.153435 mm")),
    Sketcher.Constraint("DistanceX", -1, 1, 45, 3, Q("224.359994 mm")),
    Sketcher.Constraint("DistanceX", -1, 1, 53, 3, Q("314.359995 mm")),
    Sketcher.Constraint("DistanceY", 55, 3, -1, 1, Q("24.701534 mm")),
    Sketcher.Constraint("DistanceX", -1, 1, 59, 3, Q("474.359995 mm")),
    Sketcher.Constraint("DistanceY", -1, 1, 62, 3, Q("30.222398 mm")),
    Sketcher.Constraint("DistanceY", -1, 1, 65, 3, Q("135.298466 mm")),
])
pad1 = body.newObject("PartDesign::Pad", "Pad")
pad1.Profile = sketch1
pad1.Length = 4
body2 = doc.addObject("PartDesign::Body", "Body001")

sketch2 = body2.newObject("Sketcher::SketchObject", "Sketch001")
sketch2.AttachmentSupport = (doc.getObject("XZ_Plane001"), [""])
sketch2.MapMode = "FlatFace"
sketch2.AttachmentOffset = App.Placement(Vector(0, 0, -173.615401), App.Rotation())
sketch2.addGeometry([
    Part.LineSegment(Vector(-170.306271, 4, 0), Vector(-90.306271, 4, 0)),
    Part.LineSegment(Vector(-90.306271, 4, 0), Vector(-90.306271, 0, 0)),
    Part.LineSegment(Vector(-90.306271, 0, 0), Vector(69.693729, 0, 0)),
    Part.LineSegment(Vector(69.693729, 0, 0), Vector(69.693729, 4, 0)),
    Part.LineSegment(Vector(69.693729, 4, 0), Vector(149.693729, 4, 0)),
    Part.LineSegment(Vector(149.693729, 4, 0), Vector(149.693729, 28, 0)),
    Part.LineSegment(Vector(149.693729, 28, 0), Vector(-170.306271, 28, 0)),
    Part.LineSegment(Vector(-170.306271, 28, 0), Vector(-170.306271, 4, 0)),
    Part.Circle(Vector(-30.306271, 16, 0), Vector(0, 0, 1), 2.75),
    Part.Circle(Vector(-10.306271, 16, 0), Vector(0, 0, 1), 2.75),
    Part.Circle(Vector(9.693729, 16, 0), Vector(0, 0, 1), 2.75),
], False)
sketch2.addConstraint([
    Sketcher.Constraint("Coincident", 0, 2, 1, 1),
    Sketcher.Constraint("Coincident", 1, 2, 2, 1),
    Sketcher.Constraint("Coincident", 2, 2, 3, 1),
    Sketcher.Constraint("Coincident", 3, 2, 4, 1),
    Sketcher.Constraint("Coincident", 4, 2, 5, 1),
    Sketcher.Constraint("Coincident", 5, 2, 6, 1),
    Sketcher.Constraint("Coincident", 6, 2, 7, 1),
    Sketcher.Constraint("Coincident", 7, 2, 0, 1),
    Sketcher.Constraint("Horizontal", 0),
    Sketcher.Constraint("Vertical", 1),
    Sketcher.Constraint("Horizontal", 2),
    Sketcher.Constraint("Vertical", 3),
    Sketcher.Constraint("Horizontal", 4),
    Sketcher.Constraint("Vertical", 5),
    Sketcher.Constraint("Horizontal", 6),
    Sketcher.Constraint("Vertical", 7),
    Sketcher.Constraint("Equal", 8, 9),
    Sketcher.Constraint("Equal", 9, 10),
    Sketcher.Constraint("PointOnObject", 1, 2, -1),
    Sketcher.Constraint("Horizontal", 8, 3, 9, 3),
    Sketcher.Constraint("Horizontal", 9, 3, 10, 3),
    Sketcher.Constraint("Horizontal", 0, 2, 3, 2),
    Sketcher.Constraint("Equal", 0, 4),
    Sketcher.Constraint("Diameter", 8, Q("5.5 mm")),
    Sketcher.Constraint("DistanceX", 0, 1, 0, 2, Q("80 mm")),
    Sketcher.Constraint("DistanceX", 2, 1, 2, 2, Q("160 mm")),
    Sketcher.Constraint("DistanceY", 1, 2, 1, 1, Q("4 mm")),
    Sketcher.Constraint("DistanceY", 5, 1, 5, 2, Q("24 mm")),
    Sketcher.Constraint("DistanceY", -1, 1, 8, 3, Q("16 mm")),
    Sketcher.Constraint("DistanceX", 8, 3, 9, 3, Q("20 mm")),
    Sketcher.Constraint("DistanceX", 9, 3, 10, 3, Q("20 mm")),
    Sketcher.Constraint("DistanceX", 0, 2, 8, 3, Q("60 mm")),
    Sketcher.Constraint("DistanceX", 8, 3, -1, 1, Q("30.306271 mm")),
])
pad2 = body2.newObject("PartDesign::Pad", "Pad001")
pad2.Profile = sketch2
pad2.Length = 4
body3 = doc.addObject("PartDesign::Body", "Body002")

sketch3 = body3.newObject("Sketcher::SketchObject", "Sketch002")
sketch3.AttachmentSupport = (doc.getObject("YZ_Plane002"), [""])
sketch3.MapMode = "FlatFace"
sketch3.AttachmentOffset = App.Placement(Vector(0, 0, 149.693729), App.Rotation())
sketch3.addGeometry([
    Part.LineSegment(Vector(169.615401, 4, 0), Vector(93.615401, 4, 0)),
    Part.LineSegment(Vector(93.615401, 4, 0), Vector(93.615401, 0, 0)),
    Part.LineSegment(Vector(93.615401, 0, 0), Vector(-66.384599, 0, 0)),
    Part.LineSegment(Vector(-66.384599, 0, 0), Vector(-66.384599, 4, 0)),
    Part.LineSegment(Vector(-66.384599, 4, 0), Vector(-142.384599, 4, 0)),
    Part.LineSegment(Vector(-142.384599, 4, 0), Vector(-142.384599, 28, 0)),
    Part.LineSegment(Vector(-142.384599, 28, 0), Vector(169.615401, 28, 0)),
    Part.LineSegment(Vector(169.615401, 28, 0), Vector(169.615401, 4, 0)),
], False)
sketch3.addConstraint([
    Sketcher.Constraint("Coincident", 0, 2, 1, 1),
    Sketcher.Constraint("Coincident", 1, 2, 2, 1),
    Sketcher.Constraint("Coincident", 2, 2, 3, 1),
    Sketcher.Constraint("Coincident", 3, 2, 4, 1),
    Sketcher.Constraint("Coincident", 4, 2, 5, 1),
    Sketcher.Constraint("Coincident", 5, 2, 6, 1),
    Sketcher.Constraint("Coincident", 6, 2, 7, 1),
    Sketcher.Constraint("Coincident", 7, 2, 0, 1),
    Sketcher.Constraint("Horizontal", 0),
    Sketcher.Constraint("Vertical", 1),
    Sketcher.Constraint("Horizontal", 2),
    Sketcher.Constraint("Vertical", 3),
    Sketcher.Constraint("Horizontal", 4),
    Sketcher.Constraint("Vertical", 5),
    Sketcher.Constraint("Horizontal", 6),
    Sketcher.Constraint("Vertical", 7),
    Sketcher.Constraint("PointOnObject", 1, 2, -1),
    Sketcher.Constraint("Horizontal", 0, 2, 3, 2),
    Sketcher.Constraint("Equal", 0, 4),
    Sketcher.Constraint("DistanceX", 0, 2, 0, 1, Q("76 mm")),
    Sketcher.Constraint("DistanceX", 2, 2, 2, 1, Q("160 mm")),
    Sketcher.Constraint("DistanceY", 1, 2, 1, 1, Q("4 mm")),
    Sketcher.Constraint("DistanceY", 5, 1, 5, 2, Q("24 mm")),
    Sketcher.Constraint("DistanceX", -1, 1, 0, 2, Q("93.615401 mm")),
])
pad3 = body3.newObject("PartDesign::Pad", "Pad002")
pad3.Profile = sketch3
pad3.Length = 4
pad3.Reversed = True

doc.recompute()
